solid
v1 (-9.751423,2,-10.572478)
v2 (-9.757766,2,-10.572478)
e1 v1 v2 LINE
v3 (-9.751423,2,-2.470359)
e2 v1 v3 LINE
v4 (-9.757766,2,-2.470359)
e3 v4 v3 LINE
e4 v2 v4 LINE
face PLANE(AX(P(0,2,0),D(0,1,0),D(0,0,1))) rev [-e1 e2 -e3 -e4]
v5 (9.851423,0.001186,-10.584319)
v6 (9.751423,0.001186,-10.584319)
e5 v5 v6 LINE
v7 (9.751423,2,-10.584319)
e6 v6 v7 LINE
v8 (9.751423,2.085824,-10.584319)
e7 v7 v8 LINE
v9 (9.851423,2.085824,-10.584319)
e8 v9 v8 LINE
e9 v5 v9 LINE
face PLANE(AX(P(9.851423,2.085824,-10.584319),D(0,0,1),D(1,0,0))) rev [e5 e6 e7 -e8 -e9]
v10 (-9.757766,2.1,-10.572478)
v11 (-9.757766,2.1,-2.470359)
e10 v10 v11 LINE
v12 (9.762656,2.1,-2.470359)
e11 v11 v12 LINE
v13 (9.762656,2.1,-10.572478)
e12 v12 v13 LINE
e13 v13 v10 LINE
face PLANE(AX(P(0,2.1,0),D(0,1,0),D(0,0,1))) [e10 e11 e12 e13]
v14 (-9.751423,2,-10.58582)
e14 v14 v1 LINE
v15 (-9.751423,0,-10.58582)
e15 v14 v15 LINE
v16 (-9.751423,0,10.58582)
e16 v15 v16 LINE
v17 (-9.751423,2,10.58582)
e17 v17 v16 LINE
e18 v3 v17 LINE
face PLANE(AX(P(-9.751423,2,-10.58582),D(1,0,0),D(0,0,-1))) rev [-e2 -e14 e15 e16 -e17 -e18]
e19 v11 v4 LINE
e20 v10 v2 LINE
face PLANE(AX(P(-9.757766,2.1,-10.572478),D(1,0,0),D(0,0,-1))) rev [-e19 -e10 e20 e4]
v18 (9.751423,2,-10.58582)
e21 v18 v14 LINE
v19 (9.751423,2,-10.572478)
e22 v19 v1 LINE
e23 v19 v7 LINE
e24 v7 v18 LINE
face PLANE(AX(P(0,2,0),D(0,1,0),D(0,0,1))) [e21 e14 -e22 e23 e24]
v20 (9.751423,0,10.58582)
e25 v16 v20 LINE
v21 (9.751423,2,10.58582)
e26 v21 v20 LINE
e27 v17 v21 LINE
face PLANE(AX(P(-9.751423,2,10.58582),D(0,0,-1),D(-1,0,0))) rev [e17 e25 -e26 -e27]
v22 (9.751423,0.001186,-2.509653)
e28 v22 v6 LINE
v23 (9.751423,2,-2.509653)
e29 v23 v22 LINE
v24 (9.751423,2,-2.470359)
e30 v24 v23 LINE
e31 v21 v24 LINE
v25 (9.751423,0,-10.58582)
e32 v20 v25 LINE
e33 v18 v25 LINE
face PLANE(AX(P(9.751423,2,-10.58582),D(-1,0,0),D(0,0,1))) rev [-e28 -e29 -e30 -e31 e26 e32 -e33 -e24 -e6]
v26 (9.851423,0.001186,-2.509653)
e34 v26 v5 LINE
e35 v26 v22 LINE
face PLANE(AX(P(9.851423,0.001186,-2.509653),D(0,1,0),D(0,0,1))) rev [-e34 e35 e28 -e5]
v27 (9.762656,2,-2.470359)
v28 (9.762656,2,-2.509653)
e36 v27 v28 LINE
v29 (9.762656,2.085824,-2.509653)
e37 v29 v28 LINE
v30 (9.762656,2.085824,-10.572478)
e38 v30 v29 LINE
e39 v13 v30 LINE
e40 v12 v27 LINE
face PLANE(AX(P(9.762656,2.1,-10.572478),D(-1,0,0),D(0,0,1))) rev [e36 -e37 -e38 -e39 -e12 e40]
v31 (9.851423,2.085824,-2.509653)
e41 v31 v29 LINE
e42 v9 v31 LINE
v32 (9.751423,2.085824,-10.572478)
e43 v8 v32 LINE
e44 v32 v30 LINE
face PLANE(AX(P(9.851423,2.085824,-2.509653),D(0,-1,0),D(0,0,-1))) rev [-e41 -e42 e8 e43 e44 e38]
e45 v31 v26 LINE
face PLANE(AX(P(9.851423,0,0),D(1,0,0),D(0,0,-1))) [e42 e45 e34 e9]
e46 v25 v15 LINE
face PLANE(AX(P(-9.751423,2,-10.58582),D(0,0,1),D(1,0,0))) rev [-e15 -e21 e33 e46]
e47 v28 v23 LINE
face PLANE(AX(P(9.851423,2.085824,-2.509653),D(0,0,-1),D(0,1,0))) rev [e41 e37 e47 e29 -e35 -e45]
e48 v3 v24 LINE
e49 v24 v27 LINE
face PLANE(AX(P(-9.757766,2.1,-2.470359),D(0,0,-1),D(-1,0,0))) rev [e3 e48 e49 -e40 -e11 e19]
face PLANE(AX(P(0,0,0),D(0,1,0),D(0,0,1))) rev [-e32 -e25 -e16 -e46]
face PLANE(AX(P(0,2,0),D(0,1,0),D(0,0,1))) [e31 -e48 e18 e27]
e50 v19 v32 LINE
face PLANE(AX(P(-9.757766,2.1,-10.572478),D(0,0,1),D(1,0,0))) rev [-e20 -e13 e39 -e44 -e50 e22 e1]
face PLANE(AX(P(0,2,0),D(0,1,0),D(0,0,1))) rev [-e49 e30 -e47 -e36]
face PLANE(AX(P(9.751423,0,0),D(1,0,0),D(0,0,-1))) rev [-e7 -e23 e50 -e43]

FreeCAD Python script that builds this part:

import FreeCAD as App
import Part
import Sketcher
Q = App.Units.Quantity


def add_polygon(sketch, points):
    """Adds a closed chain of lines whose ends are joined by coincident constraints."""
    first, n = sketch.GeometryCount, len(points)
    for a, b in zip(points, points[1:] + points[:1]):
        sketch.addGeometry(Part.LineSegment(App.Vector(*a, 0), App.Vector(*b, 0)), False)
    for i in range(n):
        sketch.addConstraint(Sketcher.Constraint("Coincident", first + i, 2, first + (i + 1) % n, 1))

doc = App.newDocument("Part")
body = doc.addObject("PartDesign::Body", "Body")

# Sketch on XZ plane
sketch1 = body.newObject("Sketcher::SketchObject", "Sketch")
sketch1.AttachmentSupport = (doc.getObject("XZ_Plane"), [""])
sketch1.MapMode = "FlatFace"
add_polygon(sketch1, [(-10, -11), (-10, 11), (10, 11), (10, -11)])  # lines 0-3
sketch1.addConstraint(Sketcher.Constraint("Vertical", 0))
sketch1.addConstraint(Sketcher.Constraint("Horizontal", 1))
sketch1.addConstraint(Sketcher.Constraint("Vertical", 2))
sketch1.addConstraint(Sketcher.Constraint("Horizontal", 3))
sketch1.addConstraint(Sketcher.Constraint("Symmetric", 0, 2, 2, 2, -1, 1))
sketch1.addConstraint(Sketcher.Constraint("DistanceY", 0, 1, 0, 2, Q("21.171639 mm")))
sketch1.addConstraint(Sketcher.Constraint("DistanceX", 1, 1, 1, 2, Q("19.502847 mm")))
pad1 = body.newObject("PartDesign::Pad", "Pad")
pad1.Profile = sketch1
pad1.Length = 2
pad1.Reversed = True

# Sketch on XZ plane
sketch2 = body.newObject("Sketcher::SketchObject", "Sketch001")
sketch2.AttachmentSupport = (doc.getObject("XZ_Plane"), [""])
sketch2.MapMode = "FlatFace"
sketch2.AttachmentOffset = App.Placement(App.Vector(0, 0, -2), App.Rotation())
add_polygon(sketch2, [(-10, -11), (-10, -2), (10, -2), (10, -11)])  # lines 0-3
sketch2.addConstraint(Sketcher.Constraint("Vertical", 0))
sketch2.addConstraint(Sketcher.Constraint("Horizontal", 1))
sketch2.addConstraint(Sketcher.Constraint("Vertical", 2))
sketch2.addConstraint(Sketcher.Constraint("Horizontal", 3))
sketch2.addConstraint(Sketcher.Constraint("DistanceY", 0, 1, 0, 2, Q("8.102119 mm")))
sketch2.addConstraint(Sketcher.Constraint("DistanceX", 1, 1, 1, 2, Q("19.520423 mm")))
sketch2.addConstraint(Sketcher.Constraint("DistanceY", 0, 2, -1, 1, Q("2.470359 mm")))
sketch2.addConstraint(Sketcher.Constraint("DistanceX", 0, 2, -1, 1, Q("9.757766 mm")))
pad2 = body.newObject("PartDesign::Pad", "Pad001")
pad2.Profile = sketch2
pad2.Length = 0.1
pad2.Reversed = True

# Sketch on YZ plane
sketch3 = body.newObject("Sketcher::SketchObject", "Sketch002")
sketch3.AttachmentSupport = (doc.getObject("YZ_Plane"), [""])
sketch3.MapMode = "FlatFace"
sketch3.AttachmentOffset = App.Placement(App.Vector(0, 0, 9.751423), App.Rotation())
add_polygon(sketch3, [(2.1, -2.5), (0, -2.5), (0, -10.6), (2.1, -10.6)])  # lines 0-3
sketch3.addConstraint(Sketcher.Constraint("Horizontal", 0))
sketch3.addConstraint(Sketcher.Constraint("Vertical", 1))
sketch3.addConstraint(Sketcher.Constraint("Horizontal", 2))
sketch3.addConstraint(Sketcher.Constraint("Vertical", 3))
sketch3.addConstraint(Sketcher.Constraint("DistanceX", 0, 2, 0, 1, Q("2.084638 mm")))
sketch3.addConstraint(Sketcher.Constraint("DistanceY", 1, 2, 1, 1, Q("8.074665 mm")))
sketch3.addConstraint(Sketcher.Constraint("DistanceY", 1, 2, -1, 1, Q("10.584319 mm")))
sketch3.addConstraint(Sketcher.Constraint("DistanceX", -1, 1, 0, 2, Q("0.001186 mm")))
pad3 = body.newObject("PartDesign::Pad", "Pad002")
pad3.Profile = sketch3
pad3.Length = 0.1

doc.recompute()
